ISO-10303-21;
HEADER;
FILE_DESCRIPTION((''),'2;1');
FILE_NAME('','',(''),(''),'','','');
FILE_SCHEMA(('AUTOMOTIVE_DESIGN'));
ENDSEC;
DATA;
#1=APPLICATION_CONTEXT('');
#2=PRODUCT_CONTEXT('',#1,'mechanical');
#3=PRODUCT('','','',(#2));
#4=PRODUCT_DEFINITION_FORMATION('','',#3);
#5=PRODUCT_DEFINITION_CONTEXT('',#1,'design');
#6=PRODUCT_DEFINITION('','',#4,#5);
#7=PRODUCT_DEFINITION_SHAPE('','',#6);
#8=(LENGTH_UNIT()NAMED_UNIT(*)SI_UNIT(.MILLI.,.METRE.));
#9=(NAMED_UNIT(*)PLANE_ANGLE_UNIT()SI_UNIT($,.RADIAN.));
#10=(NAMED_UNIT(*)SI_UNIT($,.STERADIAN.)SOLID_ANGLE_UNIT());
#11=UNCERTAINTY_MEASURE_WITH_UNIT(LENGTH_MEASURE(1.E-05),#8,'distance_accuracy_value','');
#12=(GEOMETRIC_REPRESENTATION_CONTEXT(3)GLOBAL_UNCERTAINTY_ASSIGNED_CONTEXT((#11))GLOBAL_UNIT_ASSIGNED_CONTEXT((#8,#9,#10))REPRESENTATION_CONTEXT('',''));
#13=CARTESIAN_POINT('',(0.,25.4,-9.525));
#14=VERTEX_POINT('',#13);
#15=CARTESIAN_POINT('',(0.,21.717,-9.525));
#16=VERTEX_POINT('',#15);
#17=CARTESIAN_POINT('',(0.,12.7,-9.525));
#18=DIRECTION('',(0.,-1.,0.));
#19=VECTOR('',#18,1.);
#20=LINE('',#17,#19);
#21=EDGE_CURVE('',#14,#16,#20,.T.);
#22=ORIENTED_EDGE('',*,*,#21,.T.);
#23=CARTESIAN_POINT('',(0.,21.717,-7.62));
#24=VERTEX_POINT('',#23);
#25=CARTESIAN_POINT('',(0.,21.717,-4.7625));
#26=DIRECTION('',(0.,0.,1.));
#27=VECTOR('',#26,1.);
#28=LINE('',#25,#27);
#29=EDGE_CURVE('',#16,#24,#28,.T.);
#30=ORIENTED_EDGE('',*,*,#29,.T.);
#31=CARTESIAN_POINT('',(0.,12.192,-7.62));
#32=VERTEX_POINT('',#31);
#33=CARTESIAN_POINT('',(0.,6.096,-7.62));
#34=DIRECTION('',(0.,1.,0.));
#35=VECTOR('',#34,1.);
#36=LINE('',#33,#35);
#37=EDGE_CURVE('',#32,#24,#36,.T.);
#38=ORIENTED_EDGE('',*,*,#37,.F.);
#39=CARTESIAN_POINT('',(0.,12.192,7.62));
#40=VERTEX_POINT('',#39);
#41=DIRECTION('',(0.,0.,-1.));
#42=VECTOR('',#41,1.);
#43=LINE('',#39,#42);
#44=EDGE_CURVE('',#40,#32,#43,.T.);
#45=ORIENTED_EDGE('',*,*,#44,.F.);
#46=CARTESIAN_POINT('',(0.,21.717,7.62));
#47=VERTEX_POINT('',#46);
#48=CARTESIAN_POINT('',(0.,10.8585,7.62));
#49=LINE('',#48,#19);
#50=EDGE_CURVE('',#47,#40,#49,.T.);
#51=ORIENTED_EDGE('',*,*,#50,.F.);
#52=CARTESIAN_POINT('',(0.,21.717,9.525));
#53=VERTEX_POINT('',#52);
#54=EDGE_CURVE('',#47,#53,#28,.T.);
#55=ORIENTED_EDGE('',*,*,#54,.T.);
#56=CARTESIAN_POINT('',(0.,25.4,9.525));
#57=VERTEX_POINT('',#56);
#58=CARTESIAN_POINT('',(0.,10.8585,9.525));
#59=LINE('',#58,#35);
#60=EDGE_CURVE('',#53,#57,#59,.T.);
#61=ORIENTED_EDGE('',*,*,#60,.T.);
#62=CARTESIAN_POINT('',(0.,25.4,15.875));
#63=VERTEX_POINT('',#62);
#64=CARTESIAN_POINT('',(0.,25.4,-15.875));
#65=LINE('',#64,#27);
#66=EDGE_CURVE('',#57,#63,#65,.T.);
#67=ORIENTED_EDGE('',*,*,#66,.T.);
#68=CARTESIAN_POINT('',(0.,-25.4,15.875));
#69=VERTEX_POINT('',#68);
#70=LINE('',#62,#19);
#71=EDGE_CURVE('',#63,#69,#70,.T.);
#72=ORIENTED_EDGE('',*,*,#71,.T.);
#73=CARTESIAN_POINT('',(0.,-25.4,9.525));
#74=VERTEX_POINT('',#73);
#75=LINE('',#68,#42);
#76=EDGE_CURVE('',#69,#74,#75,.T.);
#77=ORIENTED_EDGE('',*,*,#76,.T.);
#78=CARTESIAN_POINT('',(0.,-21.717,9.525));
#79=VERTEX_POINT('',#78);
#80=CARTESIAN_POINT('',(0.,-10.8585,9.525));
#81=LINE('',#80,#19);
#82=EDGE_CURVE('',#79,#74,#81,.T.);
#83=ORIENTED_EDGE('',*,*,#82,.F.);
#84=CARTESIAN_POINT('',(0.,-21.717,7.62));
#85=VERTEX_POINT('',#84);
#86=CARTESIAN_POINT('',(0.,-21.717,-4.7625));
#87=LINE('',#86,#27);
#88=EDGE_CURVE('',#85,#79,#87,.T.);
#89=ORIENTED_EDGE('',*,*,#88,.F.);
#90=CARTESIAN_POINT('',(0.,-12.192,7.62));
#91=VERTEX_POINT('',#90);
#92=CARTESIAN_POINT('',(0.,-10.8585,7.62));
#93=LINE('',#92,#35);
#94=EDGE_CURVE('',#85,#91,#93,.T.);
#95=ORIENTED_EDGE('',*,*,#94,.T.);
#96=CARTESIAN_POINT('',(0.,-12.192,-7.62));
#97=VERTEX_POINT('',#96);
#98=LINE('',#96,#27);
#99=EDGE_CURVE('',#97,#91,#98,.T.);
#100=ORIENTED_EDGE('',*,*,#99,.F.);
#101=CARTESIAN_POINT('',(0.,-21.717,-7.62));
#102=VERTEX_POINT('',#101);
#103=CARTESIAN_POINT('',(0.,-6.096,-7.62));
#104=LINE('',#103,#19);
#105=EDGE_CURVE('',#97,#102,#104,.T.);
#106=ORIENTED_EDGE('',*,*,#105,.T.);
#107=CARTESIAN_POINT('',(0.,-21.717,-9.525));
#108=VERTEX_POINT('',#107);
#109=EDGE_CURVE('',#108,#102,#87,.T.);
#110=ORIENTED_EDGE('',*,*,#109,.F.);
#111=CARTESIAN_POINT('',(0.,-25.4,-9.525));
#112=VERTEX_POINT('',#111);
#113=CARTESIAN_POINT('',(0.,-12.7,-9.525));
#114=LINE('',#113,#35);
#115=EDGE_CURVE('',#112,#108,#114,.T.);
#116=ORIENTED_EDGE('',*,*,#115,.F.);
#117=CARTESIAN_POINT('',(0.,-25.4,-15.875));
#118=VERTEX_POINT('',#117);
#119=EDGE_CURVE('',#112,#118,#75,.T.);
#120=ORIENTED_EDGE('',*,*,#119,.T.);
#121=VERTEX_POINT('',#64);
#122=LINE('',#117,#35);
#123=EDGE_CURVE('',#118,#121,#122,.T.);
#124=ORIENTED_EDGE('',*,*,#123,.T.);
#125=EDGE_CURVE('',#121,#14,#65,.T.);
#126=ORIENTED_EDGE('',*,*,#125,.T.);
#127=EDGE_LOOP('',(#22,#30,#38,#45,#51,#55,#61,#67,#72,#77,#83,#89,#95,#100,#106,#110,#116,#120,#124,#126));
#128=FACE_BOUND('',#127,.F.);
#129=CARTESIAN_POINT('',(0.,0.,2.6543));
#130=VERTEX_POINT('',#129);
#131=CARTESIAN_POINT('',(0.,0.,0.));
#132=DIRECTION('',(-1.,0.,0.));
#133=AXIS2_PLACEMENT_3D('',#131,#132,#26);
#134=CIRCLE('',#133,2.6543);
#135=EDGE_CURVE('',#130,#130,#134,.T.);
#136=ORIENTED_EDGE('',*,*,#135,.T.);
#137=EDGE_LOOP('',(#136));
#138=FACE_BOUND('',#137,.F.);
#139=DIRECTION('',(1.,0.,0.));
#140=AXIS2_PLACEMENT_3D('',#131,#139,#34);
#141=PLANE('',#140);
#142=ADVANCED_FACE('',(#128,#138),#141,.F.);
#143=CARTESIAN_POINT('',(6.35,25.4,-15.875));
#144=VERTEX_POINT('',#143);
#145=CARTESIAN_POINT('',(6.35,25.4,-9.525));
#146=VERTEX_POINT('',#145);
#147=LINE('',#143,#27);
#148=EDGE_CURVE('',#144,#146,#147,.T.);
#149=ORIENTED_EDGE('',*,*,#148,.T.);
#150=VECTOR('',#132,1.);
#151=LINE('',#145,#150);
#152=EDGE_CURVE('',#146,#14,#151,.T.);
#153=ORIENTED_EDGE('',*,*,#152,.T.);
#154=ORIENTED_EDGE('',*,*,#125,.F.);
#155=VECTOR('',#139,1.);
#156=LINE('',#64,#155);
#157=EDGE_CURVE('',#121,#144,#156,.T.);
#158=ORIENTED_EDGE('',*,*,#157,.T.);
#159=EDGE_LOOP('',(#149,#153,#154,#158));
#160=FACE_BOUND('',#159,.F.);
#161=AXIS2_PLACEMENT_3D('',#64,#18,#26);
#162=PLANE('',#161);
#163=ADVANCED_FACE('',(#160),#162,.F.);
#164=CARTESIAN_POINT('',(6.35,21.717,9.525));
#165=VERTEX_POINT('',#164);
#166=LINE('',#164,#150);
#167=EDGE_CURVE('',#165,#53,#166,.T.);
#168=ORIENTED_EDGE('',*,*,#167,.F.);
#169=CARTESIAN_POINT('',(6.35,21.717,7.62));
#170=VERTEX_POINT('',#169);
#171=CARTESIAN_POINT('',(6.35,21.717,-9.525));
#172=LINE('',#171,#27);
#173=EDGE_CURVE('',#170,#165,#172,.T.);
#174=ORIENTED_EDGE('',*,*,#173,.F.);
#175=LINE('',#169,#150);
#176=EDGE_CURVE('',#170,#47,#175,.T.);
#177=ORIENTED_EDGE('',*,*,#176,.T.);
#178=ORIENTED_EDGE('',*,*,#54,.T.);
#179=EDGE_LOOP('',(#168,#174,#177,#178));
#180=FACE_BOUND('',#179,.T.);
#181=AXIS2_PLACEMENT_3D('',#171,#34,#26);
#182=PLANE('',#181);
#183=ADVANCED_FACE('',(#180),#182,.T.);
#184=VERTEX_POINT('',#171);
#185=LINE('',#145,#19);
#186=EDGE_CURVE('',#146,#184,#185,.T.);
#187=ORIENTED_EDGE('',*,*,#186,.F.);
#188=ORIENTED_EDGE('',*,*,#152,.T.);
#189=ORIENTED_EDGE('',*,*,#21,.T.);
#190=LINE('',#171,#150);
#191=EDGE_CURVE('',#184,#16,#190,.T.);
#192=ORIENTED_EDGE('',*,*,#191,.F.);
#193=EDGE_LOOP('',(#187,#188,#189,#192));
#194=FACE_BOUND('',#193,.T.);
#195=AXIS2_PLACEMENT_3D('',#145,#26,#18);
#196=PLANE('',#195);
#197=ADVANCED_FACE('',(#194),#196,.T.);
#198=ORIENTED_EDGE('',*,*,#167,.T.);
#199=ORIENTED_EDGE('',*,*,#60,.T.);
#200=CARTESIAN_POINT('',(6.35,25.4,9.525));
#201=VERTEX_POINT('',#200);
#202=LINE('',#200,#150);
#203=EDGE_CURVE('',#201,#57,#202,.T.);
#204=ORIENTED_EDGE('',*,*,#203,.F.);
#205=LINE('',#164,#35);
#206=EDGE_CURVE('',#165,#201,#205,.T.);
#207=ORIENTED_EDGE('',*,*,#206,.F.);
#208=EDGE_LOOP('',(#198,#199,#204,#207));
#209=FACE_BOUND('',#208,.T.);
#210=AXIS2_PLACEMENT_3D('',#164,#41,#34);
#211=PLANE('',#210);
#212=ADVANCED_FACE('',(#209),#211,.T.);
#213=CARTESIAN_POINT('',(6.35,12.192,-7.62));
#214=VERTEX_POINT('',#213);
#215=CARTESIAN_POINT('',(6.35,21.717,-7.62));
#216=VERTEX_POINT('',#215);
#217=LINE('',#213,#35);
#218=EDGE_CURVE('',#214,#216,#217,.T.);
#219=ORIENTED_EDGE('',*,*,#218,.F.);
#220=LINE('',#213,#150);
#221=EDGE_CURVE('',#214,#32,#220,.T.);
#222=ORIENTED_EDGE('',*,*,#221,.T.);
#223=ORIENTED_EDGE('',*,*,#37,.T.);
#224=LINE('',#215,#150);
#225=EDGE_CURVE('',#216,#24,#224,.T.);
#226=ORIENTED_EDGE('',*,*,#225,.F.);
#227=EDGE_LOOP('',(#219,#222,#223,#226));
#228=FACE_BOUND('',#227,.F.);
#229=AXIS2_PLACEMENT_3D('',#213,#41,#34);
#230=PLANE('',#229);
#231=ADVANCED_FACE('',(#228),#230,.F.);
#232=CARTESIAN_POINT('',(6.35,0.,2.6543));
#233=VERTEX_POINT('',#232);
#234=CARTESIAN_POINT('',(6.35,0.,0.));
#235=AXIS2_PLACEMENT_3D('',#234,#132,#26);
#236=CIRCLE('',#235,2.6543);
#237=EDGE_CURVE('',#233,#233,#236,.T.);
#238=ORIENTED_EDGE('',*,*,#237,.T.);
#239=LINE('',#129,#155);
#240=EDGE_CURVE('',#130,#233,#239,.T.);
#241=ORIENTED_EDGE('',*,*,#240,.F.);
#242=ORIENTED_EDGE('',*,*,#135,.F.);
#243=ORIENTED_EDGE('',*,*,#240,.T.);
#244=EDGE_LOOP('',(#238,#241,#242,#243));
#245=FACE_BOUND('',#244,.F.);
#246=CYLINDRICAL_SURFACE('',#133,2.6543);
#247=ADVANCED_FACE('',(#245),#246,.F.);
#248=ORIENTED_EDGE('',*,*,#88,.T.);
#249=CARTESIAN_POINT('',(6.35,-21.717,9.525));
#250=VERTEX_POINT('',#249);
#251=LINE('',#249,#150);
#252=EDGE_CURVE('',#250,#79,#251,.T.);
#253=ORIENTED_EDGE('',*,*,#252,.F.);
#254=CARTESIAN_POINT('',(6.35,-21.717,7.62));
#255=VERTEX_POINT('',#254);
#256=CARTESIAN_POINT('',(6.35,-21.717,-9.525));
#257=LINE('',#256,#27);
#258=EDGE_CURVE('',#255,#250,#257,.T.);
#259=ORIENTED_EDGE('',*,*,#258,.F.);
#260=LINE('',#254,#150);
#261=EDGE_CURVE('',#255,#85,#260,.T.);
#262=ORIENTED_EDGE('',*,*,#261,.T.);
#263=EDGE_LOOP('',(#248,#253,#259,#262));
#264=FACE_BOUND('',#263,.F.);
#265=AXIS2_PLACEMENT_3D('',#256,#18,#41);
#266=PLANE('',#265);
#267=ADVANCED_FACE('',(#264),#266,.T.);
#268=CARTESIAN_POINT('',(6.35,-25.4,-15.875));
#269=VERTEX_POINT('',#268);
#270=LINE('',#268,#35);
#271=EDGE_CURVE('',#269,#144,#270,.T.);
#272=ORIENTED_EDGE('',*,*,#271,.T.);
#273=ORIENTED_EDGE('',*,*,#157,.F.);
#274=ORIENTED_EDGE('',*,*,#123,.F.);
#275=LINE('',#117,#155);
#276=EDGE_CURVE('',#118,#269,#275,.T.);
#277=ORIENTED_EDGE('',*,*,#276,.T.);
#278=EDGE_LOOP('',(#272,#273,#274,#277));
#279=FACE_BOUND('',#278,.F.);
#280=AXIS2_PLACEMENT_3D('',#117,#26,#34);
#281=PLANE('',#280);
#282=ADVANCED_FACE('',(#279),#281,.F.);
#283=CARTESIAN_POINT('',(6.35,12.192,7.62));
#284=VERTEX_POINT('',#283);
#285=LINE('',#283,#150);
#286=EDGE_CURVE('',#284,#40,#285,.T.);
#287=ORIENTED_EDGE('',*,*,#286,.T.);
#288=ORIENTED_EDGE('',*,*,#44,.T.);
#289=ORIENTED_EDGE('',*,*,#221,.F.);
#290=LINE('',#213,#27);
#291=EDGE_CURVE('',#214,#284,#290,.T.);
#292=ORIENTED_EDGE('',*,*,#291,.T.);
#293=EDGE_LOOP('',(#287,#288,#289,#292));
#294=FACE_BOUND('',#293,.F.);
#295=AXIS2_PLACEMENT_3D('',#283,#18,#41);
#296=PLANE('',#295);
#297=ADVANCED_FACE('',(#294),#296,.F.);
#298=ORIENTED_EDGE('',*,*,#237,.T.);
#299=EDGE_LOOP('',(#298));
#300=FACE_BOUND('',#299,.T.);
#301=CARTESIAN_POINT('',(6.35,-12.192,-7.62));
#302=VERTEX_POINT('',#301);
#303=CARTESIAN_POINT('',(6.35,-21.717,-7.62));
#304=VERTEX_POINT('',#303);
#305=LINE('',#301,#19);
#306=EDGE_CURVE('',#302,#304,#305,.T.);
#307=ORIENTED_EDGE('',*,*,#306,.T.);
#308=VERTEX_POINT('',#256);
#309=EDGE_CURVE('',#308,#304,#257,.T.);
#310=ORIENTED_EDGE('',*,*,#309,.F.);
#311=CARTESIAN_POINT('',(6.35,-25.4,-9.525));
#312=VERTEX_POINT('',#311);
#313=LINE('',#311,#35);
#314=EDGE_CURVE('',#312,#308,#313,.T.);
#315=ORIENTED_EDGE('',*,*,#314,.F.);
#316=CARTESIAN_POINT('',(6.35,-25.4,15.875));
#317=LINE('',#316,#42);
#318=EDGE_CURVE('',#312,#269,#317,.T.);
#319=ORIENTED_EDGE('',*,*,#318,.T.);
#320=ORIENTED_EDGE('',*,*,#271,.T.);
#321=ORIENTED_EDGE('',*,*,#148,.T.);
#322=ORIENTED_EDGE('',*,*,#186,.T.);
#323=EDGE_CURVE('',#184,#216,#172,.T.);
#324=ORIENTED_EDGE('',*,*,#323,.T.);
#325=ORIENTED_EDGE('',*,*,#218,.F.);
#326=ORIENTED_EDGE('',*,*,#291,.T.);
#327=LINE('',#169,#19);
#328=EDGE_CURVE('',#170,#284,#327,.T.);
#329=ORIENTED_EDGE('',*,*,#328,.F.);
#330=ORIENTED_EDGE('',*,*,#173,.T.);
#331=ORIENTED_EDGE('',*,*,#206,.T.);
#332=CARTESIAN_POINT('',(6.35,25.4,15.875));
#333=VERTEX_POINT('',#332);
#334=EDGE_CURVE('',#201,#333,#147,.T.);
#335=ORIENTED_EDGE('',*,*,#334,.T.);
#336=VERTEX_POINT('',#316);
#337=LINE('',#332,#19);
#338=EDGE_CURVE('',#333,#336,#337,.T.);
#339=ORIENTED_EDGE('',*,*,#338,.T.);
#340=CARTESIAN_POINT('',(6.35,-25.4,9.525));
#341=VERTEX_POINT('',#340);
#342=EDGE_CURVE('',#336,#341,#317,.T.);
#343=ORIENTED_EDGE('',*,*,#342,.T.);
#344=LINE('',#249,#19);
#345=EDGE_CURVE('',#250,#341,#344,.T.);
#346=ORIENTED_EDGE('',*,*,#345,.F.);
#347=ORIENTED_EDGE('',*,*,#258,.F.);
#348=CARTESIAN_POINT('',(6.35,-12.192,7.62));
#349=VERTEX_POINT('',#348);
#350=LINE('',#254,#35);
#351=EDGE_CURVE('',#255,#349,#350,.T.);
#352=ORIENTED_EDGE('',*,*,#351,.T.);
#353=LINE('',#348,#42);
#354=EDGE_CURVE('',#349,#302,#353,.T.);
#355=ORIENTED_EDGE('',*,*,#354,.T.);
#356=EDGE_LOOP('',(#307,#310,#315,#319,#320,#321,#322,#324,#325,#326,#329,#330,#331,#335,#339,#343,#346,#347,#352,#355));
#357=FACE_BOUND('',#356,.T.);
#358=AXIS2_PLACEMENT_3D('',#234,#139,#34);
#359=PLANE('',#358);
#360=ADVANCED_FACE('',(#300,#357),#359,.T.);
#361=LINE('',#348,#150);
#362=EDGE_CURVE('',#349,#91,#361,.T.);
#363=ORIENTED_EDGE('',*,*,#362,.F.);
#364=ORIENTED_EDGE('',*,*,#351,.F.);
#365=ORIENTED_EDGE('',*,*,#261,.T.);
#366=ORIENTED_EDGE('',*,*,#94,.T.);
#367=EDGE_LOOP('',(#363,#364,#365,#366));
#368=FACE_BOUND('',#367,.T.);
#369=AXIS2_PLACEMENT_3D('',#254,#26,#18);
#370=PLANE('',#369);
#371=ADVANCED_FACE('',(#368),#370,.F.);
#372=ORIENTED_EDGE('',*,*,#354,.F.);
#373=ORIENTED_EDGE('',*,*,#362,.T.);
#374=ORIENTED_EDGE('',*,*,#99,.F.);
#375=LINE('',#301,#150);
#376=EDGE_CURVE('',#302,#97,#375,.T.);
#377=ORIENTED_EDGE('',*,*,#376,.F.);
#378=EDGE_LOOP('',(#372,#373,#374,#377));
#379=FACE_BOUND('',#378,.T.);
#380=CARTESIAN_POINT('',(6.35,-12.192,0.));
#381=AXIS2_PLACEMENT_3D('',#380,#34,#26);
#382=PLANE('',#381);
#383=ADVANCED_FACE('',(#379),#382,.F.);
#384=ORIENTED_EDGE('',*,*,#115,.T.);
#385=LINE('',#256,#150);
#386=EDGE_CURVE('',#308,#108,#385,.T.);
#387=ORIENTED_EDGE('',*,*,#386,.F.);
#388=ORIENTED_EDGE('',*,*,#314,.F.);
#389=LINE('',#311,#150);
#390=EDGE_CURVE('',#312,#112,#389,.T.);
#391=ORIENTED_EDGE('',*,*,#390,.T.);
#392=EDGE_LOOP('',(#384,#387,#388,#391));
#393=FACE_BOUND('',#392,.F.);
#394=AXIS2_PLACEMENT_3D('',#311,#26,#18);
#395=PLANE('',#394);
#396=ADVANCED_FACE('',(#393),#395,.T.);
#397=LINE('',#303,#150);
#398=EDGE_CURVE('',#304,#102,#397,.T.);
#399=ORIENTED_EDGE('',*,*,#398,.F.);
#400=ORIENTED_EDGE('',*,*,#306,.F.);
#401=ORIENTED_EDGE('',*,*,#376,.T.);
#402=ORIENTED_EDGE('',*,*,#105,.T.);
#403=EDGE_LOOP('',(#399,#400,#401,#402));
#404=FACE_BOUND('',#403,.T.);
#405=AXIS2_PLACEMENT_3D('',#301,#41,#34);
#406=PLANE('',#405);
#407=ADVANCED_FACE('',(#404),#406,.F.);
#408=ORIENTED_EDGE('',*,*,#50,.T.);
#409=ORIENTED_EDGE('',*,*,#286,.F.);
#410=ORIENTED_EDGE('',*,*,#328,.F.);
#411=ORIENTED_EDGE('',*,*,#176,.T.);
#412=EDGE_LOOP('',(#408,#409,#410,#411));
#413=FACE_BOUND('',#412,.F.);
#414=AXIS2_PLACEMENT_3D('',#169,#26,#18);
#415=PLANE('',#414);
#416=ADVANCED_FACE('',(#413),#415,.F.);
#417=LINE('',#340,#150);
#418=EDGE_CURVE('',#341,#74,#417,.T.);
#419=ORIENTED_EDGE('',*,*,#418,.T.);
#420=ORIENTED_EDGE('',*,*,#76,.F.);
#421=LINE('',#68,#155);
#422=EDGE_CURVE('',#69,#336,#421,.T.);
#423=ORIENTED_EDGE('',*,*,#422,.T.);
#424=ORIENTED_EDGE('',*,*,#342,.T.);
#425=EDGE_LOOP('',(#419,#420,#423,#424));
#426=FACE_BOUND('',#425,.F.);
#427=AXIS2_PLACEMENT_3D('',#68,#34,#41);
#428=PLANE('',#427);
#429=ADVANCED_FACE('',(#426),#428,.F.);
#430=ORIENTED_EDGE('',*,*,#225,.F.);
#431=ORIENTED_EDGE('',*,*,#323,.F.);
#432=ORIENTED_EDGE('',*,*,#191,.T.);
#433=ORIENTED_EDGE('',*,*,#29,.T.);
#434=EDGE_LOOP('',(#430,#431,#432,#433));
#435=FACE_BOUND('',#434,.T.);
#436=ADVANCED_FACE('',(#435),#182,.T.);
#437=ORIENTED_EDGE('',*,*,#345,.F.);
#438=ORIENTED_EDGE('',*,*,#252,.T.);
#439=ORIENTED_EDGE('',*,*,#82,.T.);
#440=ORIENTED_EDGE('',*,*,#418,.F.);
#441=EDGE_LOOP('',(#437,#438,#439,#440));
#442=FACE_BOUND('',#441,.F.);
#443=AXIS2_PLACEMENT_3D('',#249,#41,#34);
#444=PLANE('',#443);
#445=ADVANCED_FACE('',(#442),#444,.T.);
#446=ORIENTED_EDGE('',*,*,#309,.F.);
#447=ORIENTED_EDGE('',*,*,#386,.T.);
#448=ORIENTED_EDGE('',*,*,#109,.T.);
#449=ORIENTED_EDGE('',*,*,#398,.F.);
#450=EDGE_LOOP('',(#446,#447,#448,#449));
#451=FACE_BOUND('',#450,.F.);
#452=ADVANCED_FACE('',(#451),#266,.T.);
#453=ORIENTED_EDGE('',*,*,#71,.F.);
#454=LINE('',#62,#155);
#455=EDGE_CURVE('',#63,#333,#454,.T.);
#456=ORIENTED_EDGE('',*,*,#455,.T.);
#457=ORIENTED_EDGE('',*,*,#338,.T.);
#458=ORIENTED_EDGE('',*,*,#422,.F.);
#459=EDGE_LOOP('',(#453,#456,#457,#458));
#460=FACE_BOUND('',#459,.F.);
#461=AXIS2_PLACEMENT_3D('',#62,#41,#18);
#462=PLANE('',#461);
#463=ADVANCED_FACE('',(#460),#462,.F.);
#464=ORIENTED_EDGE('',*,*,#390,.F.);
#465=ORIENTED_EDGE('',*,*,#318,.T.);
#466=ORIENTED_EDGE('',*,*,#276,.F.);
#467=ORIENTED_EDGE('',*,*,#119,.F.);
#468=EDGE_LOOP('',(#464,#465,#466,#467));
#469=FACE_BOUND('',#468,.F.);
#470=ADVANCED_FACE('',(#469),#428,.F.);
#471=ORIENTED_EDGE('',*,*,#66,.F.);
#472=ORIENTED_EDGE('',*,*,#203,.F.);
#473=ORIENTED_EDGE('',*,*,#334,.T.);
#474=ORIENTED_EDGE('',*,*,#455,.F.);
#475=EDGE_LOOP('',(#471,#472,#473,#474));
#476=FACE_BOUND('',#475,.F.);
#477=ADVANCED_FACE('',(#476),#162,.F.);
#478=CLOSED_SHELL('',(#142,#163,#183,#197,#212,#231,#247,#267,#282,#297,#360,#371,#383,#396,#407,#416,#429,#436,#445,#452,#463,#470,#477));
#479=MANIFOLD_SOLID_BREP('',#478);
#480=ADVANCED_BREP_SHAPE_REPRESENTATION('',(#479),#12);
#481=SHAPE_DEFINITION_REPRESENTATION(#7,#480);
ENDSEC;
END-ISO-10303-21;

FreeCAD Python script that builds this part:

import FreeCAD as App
import Part
import Sketcher
Q = App.Units.Quantity


def add_polygon(sketch, points):
    """Adds a closed chain of lines whose ends are joined by coincident constraints."""
    first, n = sketch.GeometryCount, len(points)
    for a, b in zip(points, points[1:] + points[:1]):
        sketch.addGeometry(Part.LineSegment(App.Vector(*a, 0), App.Vector(*b, 0)), False)
    for i in range(n):
        sketch.addConstraint(Sketcher.Constraint("Coincident", first + i, 2, first + (i + 1) % n, 1))

doc = App.newDocument("Part")
params = doc.addObject("Spreadsheet::Sheet", "Params")
for row, (alias, value) in enumerate([
    ("sketch1_width", "2 in"),
    ("sketch1_height", "1.25 in"),
    ("pad1_length", "0.25 in"),
    ("sketch2_diameter", "0.209 in"),
    ("sketch3_height", "0.75 in"),
    ("sketch3_width", "0.145 in"),
    ("sketch4_width", "0.375 in"),
], start=1):
    params.set(f"A{row}", alias)
    params.set(f"B{row}", "=" + value)
    params.setAlias(f"B{row}", alias)

body = doc.addObject("PartDesign::Body", "Body")

sketch1 = body.newObject("Sketcher::SketchObject", "Sketch")
sketch1.AttachmentSupport = (doc.getObject("YZ_Plane"), [""])
sketch1.MapMode = "FlatFace"
add_polygon(sketch1, [(25, 16), (-25, 16), (-25, -16), (25, -16)])
sketch1.addConstraint([
    Sketcher.Constraint("Horizontal", 0),
    Sketcher.Constraint("Vertical", 1),
    Sketcher.Constraint("Horizontal", 2),
    Sketcher.Constraint("Vertical", 3),
    Sketcher.Constraint("Symmetric", 0, 2, 2, 2, -1, 1),
    Sketcher.Constraint("DistanceX", 0, 2, 0, 1, Q("2 in")),
    Sketcher.Constraint("DistanceY", 1, 2, 1, 1, Q("1.25 in")),
])
sketch1.setExpression("Constraints[9]", "Params.sketch1_width")
sketch1.setExpression("Constraints[10]", "Params.sketch1_height")
pad1 = body.newObject("PartDesign::Pad", "Pad")
pad1.Profile = sketch1
pad1.setExpression("Length", "Params.pad1_length")

sketch2 = body.newObject("Sketcher::SketchObject", "Sketch001")
sketch2.AttachmentSupport = (doc.getObject("YZ_Plane"), [""])
sketch2.MapMode = "FlatFace"
sketch2.addGeometry(Part.Circle(App.Vector(0, 0, 0), App.Vector(0, 0, 1), 2.7), False)
sketch2.addConstraint([
    Sketcher.Constraint("Coincident", 0, 3, -1, 1),
    Sketcher.Constraint("Diameter", 0, Q("0.209 in")),
])
sketch2.setExpression("Constraints[1]", "Params.sketch2_diameter")
pocket1 = body.newObject("PartDesign::Pocket", "Pocket")
pocket1.Profile = sketch2
pocket1.Type = "ThroughAll"
pocket1.Reversed = True

sketch3 = body.newObject("Sketcher::SketchObject", "Sketch002")
sketch3.AttachmentSupport = (doc.getObject("YZ_Plane"), [""])
sketch3.MapMode = "FlatFace"
sketch3.AttachmentOffset = App.Placement(App.Vector(0, 0, 0.25 * 25.4), App.Rotation())
add_polygon(sketch3, [(21.7, -9.5), (25.4, -9.5), (25.4, 9.5), (21.7, 9.5)])
sketch3.addConstraint([
    Sketcher.Constraint("Horizontal", 0),
    Sketcher.Constraint("Vertical", 1),
    Sketcher.Constraint("Horizontal", 2),
    Sketcher.Constraint("Vertical", 3),
    Sketcher.Constraint("DistanceY", 1, 1, 1, 2, Q("0.75 in")),
    Sketcher.Constraint("DistanceX", 0, 1, 0, 2, Q("0.145 in")),
    Sketcher.Constraint("DistanceX", -1, 1, 0, 2, Q("1 in")),
    Sketcher.Constraint("DistanceY", 0, 2, -1, 1, Q("0.375 in")),
])
sketch3.setExpression("Constraints[8]", "Params.sketch3_height")
sketch3.setExpression("Constraints[9]", "Params.sketch3_width")
pocket2 = body.newObject("PartDesign::Pocket", "Pocket001")
pocket2.Profile = sketch3
pocket2.Type = "ThroughAll"
doc.recompute()

mirrored = body.newObject("PartDesign::Mirrored", "Mirrored")
mirrored.Originals = [pocket2]
mirrored.MirrorPlane = (doc.getObject("XZ_Plane"), [""])
body.Tip = mirrored

sketch4 = body.newObject("Sketcher::SketchObject", "Sketch003")
sketch4.AttachmentSupport = (doc.getObject("YZ_Plane"), [""])
sketch4.MapMode = "FlatFace"
sketch4.AttachmentOffset = App.Placement(App.Vector(0, 0, 0.25 * 25.4), App.Rotation())
add_polygon(sketch4, [(12, 8), (12, -8), (22, -8), (22, 8)])
sketch4.addConstraint([
    Sketcher.Constraint("Vertical", 0),
    Sketcher.Constraint("Horizontal", 1),
    Sketcher.Constraint("Vertical", 2),
    Sketcher.Constraint("Horizontal", 3),
    Sketcher.Constraint("DistanceY", 0, 2, -1, 1, Q("0.3 in")),
    Sketcher.Constraint("DistanceY", -1, 1, 2, 2, Q("0.3 in")),
    Sketcher.Constraint("DistanceX", 1, 1, 1, 2, Q("0.375 in")),
    Sketcher.Constraint("DistanceX", -1, 1, 0, 2, Q("0.48 in")),
])
sketch4.setExpression("Constraints[10]", "Params.sketch4_width")
pocket3 = body.newObject("PartDesign::Pocket", "Pocket002")
pocket3.Profile = sketch4
pocket3.Type = "ThroughAll"
doc.recompute()

mirrored2 = body.newObject("PartDesign::Mirrored", "Mirrored001")
mirrored2.Originals = [pocket3]
mirrored2.MirrorPlane = (doc.getObject("XZ_Plane"), [""])
body.Tip = mirrored2

doc.recompute()
